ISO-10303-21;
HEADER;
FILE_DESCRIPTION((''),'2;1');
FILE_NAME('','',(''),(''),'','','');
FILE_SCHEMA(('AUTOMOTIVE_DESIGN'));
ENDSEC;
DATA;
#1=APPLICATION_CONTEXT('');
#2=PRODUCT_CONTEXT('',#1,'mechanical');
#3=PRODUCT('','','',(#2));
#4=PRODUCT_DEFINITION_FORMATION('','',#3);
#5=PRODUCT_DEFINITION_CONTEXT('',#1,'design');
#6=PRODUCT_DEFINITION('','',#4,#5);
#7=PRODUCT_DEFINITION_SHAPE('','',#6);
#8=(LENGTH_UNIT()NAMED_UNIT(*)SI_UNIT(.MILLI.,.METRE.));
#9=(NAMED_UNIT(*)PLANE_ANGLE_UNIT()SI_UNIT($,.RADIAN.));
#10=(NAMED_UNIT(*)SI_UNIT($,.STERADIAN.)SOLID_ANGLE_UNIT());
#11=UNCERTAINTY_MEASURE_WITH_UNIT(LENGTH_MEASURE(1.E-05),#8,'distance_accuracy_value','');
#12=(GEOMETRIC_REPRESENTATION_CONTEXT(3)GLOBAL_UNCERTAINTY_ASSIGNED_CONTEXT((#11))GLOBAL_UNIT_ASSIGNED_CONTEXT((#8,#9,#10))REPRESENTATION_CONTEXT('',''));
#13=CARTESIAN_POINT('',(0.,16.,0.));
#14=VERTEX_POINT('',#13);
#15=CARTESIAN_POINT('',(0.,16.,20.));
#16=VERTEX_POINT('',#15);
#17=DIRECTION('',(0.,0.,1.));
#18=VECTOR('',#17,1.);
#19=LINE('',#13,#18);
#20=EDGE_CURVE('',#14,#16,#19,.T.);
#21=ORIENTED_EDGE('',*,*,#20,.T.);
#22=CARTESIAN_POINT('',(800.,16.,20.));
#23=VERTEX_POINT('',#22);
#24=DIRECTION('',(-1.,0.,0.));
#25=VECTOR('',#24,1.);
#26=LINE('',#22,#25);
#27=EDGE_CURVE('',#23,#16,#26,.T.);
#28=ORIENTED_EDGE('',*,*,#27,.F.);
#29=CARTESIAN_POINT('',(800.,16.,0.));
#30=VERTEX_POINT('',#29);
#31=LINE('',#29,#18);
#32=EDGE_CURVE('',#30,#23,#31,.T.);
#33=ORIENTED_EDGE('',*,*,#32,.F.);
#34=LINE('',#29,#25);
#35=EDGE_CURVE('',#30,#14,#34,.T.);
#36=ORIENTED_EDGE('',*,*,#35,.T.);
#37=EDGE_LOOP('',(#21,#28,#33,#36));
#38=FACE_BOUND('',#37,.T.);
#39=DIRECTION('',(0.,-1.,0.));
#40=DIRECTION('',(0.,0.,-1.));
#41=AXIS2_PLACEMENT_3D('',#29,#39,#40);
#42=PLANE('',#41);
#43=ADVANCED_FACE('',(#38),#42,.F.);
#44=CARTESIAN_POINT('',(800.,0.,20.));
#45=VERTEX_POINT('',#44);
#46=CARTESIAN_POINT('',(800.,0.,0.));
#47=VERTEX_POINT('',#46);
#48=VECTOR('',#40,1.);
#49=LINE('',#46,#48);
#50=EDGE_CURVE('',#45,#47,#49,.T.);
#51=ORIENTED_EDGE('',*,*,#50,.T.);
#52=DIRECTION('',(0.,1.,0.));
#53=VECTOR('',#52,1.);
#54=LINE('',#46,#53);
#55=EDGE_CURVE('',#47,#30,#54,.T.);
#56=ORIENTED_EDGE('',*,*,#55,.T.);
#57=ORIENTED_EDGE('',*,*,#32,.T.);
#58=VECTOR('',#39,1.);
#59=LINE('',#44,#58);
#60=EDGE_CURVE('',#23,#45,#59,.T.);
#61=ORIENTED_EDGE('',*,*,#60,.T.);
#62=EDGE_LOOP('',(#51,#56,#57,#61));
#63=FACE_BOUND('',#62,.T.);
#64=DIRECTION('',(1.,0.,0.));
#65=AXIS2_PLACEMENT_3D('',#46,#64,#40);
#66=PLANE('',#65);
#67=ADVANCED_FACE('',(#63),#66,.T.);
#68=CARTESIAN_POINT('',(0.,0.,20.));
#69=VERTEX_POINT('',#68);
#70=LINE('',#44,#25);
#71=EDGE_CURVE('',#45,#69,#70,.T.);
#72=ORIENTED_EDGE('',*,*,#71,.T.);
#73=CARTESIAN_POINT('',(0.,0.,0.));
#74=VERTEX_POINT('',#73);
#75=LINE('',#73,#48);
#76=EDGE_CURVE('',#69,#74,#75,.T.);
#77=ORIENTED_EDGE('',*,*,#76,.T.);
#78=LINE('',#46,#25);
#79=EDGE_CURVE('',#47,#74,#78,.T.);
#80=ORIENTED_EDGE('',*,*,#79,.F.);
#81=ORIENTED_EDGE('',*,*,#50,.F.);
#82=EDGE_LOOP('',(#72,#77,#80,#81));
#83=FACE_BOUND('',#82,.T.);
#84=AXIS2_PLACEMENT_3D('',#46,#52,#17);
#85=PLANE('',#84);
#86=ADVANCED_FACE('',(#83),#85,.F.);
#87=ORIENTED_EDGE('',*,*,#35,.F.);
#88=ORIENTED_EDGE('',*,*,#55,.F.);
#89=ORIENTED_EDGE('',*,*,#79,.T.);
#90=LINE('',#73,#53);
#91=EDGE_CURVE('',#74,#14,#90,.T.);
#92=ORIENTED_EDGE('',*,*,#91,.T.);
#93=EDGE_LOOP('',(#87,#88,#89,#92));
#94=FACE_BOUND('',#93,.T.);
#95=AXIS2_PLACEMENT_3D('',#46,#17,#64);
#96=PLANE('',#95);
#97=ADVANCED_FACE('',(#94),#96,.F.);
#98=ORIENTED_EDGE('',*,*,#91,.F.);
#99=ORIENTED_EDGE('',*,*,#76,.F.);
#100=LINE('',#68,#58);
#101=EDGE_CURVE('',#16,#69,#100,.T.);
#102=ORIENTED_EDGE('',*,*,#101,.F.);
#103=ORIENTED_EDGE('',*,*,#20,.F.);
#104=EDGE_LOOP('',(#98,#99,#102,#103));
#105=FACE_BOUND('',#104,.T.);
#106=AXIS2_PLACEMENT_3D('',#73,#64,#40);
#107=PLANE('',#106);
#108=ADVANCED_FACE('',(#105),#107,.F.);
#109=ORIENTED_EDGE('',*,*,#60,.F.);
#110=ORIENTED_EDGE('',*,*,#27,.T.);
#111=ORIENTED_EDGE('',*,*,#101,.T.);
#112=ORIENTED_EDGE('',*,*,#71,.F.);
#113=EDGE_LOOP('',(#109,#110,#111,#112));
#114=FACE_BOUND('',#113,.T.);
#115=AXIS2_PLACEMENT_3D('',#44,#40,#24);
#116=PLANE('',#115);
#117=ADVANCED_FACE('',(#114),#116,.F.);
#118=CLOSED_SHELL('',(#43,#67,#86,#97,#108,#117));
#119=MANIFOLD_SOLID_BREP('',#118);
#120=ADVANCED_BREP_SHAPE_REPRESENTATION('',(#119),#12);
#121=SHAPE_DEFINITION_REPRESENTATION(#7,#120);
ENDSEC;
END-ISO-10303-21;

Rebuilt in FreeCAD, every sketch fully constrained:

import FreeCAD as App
import Part
import Sketcher

V = App.Vector
Q = App.Units.Quantity

doc = App.newDocument("Part")
body = doc.addObject("PartDesign::Body", "Body")

# Sketch on YZ plane
sketch1 = body.newObject("Sketcher::SketchObject", "Sketch")
sketch1.AttachmentSupport = (doc.getObject("YZ_Plane"), [""])
sketch1.MapMode = "FlatFace"
sketch1.addGeometry([
    Part.LineSegment(V(16, 20, 0), V(0, 20, 0)),
    Part.LineSegment(V(0, 20, 0), V(0, 0, 0)),
    Part.LineSegment(V(0, 0, 0), V(16, 0, 0)),
    Part.LineSegment(V(16, 0, 0), V(16, 20, 0)),
], False)
sketch1.addConstraint([
    Sketcher.Constraint("Coincident", 0, 2, 1, 1),
    Sketcher.Constraint("Coincident", 1, 2, 2, 1),
    Sketcher.Constraint("Coincident", 2, 2, 3, 1),
    Sketcher.Constraint("Coincident", 3, 2, 0, 1),
    Sketcher.Constraint("Horizontal", 0),
    Sketcher.Constraint("Vertical", 1),
    Sketcher.Constraint("Horizontal", 2),
    Sketcher.Constraint("Vertical", 3),
    Sketcher.Constraint("Coincident", 1, 2, -1, 1),
    Sketcher.Constraint("DistanceX", 0, 2, 0, 1, Q("16 mm")),
    Sketcher.Constraint("DistanceY", 1, 2, 1, 1, Q("20 mm")),
])
pad1 = body.newObject("PartDesign::Pad", "Pad")
pad1.Profile = sketch1
pad1.Length = 800

doc.recompute()
